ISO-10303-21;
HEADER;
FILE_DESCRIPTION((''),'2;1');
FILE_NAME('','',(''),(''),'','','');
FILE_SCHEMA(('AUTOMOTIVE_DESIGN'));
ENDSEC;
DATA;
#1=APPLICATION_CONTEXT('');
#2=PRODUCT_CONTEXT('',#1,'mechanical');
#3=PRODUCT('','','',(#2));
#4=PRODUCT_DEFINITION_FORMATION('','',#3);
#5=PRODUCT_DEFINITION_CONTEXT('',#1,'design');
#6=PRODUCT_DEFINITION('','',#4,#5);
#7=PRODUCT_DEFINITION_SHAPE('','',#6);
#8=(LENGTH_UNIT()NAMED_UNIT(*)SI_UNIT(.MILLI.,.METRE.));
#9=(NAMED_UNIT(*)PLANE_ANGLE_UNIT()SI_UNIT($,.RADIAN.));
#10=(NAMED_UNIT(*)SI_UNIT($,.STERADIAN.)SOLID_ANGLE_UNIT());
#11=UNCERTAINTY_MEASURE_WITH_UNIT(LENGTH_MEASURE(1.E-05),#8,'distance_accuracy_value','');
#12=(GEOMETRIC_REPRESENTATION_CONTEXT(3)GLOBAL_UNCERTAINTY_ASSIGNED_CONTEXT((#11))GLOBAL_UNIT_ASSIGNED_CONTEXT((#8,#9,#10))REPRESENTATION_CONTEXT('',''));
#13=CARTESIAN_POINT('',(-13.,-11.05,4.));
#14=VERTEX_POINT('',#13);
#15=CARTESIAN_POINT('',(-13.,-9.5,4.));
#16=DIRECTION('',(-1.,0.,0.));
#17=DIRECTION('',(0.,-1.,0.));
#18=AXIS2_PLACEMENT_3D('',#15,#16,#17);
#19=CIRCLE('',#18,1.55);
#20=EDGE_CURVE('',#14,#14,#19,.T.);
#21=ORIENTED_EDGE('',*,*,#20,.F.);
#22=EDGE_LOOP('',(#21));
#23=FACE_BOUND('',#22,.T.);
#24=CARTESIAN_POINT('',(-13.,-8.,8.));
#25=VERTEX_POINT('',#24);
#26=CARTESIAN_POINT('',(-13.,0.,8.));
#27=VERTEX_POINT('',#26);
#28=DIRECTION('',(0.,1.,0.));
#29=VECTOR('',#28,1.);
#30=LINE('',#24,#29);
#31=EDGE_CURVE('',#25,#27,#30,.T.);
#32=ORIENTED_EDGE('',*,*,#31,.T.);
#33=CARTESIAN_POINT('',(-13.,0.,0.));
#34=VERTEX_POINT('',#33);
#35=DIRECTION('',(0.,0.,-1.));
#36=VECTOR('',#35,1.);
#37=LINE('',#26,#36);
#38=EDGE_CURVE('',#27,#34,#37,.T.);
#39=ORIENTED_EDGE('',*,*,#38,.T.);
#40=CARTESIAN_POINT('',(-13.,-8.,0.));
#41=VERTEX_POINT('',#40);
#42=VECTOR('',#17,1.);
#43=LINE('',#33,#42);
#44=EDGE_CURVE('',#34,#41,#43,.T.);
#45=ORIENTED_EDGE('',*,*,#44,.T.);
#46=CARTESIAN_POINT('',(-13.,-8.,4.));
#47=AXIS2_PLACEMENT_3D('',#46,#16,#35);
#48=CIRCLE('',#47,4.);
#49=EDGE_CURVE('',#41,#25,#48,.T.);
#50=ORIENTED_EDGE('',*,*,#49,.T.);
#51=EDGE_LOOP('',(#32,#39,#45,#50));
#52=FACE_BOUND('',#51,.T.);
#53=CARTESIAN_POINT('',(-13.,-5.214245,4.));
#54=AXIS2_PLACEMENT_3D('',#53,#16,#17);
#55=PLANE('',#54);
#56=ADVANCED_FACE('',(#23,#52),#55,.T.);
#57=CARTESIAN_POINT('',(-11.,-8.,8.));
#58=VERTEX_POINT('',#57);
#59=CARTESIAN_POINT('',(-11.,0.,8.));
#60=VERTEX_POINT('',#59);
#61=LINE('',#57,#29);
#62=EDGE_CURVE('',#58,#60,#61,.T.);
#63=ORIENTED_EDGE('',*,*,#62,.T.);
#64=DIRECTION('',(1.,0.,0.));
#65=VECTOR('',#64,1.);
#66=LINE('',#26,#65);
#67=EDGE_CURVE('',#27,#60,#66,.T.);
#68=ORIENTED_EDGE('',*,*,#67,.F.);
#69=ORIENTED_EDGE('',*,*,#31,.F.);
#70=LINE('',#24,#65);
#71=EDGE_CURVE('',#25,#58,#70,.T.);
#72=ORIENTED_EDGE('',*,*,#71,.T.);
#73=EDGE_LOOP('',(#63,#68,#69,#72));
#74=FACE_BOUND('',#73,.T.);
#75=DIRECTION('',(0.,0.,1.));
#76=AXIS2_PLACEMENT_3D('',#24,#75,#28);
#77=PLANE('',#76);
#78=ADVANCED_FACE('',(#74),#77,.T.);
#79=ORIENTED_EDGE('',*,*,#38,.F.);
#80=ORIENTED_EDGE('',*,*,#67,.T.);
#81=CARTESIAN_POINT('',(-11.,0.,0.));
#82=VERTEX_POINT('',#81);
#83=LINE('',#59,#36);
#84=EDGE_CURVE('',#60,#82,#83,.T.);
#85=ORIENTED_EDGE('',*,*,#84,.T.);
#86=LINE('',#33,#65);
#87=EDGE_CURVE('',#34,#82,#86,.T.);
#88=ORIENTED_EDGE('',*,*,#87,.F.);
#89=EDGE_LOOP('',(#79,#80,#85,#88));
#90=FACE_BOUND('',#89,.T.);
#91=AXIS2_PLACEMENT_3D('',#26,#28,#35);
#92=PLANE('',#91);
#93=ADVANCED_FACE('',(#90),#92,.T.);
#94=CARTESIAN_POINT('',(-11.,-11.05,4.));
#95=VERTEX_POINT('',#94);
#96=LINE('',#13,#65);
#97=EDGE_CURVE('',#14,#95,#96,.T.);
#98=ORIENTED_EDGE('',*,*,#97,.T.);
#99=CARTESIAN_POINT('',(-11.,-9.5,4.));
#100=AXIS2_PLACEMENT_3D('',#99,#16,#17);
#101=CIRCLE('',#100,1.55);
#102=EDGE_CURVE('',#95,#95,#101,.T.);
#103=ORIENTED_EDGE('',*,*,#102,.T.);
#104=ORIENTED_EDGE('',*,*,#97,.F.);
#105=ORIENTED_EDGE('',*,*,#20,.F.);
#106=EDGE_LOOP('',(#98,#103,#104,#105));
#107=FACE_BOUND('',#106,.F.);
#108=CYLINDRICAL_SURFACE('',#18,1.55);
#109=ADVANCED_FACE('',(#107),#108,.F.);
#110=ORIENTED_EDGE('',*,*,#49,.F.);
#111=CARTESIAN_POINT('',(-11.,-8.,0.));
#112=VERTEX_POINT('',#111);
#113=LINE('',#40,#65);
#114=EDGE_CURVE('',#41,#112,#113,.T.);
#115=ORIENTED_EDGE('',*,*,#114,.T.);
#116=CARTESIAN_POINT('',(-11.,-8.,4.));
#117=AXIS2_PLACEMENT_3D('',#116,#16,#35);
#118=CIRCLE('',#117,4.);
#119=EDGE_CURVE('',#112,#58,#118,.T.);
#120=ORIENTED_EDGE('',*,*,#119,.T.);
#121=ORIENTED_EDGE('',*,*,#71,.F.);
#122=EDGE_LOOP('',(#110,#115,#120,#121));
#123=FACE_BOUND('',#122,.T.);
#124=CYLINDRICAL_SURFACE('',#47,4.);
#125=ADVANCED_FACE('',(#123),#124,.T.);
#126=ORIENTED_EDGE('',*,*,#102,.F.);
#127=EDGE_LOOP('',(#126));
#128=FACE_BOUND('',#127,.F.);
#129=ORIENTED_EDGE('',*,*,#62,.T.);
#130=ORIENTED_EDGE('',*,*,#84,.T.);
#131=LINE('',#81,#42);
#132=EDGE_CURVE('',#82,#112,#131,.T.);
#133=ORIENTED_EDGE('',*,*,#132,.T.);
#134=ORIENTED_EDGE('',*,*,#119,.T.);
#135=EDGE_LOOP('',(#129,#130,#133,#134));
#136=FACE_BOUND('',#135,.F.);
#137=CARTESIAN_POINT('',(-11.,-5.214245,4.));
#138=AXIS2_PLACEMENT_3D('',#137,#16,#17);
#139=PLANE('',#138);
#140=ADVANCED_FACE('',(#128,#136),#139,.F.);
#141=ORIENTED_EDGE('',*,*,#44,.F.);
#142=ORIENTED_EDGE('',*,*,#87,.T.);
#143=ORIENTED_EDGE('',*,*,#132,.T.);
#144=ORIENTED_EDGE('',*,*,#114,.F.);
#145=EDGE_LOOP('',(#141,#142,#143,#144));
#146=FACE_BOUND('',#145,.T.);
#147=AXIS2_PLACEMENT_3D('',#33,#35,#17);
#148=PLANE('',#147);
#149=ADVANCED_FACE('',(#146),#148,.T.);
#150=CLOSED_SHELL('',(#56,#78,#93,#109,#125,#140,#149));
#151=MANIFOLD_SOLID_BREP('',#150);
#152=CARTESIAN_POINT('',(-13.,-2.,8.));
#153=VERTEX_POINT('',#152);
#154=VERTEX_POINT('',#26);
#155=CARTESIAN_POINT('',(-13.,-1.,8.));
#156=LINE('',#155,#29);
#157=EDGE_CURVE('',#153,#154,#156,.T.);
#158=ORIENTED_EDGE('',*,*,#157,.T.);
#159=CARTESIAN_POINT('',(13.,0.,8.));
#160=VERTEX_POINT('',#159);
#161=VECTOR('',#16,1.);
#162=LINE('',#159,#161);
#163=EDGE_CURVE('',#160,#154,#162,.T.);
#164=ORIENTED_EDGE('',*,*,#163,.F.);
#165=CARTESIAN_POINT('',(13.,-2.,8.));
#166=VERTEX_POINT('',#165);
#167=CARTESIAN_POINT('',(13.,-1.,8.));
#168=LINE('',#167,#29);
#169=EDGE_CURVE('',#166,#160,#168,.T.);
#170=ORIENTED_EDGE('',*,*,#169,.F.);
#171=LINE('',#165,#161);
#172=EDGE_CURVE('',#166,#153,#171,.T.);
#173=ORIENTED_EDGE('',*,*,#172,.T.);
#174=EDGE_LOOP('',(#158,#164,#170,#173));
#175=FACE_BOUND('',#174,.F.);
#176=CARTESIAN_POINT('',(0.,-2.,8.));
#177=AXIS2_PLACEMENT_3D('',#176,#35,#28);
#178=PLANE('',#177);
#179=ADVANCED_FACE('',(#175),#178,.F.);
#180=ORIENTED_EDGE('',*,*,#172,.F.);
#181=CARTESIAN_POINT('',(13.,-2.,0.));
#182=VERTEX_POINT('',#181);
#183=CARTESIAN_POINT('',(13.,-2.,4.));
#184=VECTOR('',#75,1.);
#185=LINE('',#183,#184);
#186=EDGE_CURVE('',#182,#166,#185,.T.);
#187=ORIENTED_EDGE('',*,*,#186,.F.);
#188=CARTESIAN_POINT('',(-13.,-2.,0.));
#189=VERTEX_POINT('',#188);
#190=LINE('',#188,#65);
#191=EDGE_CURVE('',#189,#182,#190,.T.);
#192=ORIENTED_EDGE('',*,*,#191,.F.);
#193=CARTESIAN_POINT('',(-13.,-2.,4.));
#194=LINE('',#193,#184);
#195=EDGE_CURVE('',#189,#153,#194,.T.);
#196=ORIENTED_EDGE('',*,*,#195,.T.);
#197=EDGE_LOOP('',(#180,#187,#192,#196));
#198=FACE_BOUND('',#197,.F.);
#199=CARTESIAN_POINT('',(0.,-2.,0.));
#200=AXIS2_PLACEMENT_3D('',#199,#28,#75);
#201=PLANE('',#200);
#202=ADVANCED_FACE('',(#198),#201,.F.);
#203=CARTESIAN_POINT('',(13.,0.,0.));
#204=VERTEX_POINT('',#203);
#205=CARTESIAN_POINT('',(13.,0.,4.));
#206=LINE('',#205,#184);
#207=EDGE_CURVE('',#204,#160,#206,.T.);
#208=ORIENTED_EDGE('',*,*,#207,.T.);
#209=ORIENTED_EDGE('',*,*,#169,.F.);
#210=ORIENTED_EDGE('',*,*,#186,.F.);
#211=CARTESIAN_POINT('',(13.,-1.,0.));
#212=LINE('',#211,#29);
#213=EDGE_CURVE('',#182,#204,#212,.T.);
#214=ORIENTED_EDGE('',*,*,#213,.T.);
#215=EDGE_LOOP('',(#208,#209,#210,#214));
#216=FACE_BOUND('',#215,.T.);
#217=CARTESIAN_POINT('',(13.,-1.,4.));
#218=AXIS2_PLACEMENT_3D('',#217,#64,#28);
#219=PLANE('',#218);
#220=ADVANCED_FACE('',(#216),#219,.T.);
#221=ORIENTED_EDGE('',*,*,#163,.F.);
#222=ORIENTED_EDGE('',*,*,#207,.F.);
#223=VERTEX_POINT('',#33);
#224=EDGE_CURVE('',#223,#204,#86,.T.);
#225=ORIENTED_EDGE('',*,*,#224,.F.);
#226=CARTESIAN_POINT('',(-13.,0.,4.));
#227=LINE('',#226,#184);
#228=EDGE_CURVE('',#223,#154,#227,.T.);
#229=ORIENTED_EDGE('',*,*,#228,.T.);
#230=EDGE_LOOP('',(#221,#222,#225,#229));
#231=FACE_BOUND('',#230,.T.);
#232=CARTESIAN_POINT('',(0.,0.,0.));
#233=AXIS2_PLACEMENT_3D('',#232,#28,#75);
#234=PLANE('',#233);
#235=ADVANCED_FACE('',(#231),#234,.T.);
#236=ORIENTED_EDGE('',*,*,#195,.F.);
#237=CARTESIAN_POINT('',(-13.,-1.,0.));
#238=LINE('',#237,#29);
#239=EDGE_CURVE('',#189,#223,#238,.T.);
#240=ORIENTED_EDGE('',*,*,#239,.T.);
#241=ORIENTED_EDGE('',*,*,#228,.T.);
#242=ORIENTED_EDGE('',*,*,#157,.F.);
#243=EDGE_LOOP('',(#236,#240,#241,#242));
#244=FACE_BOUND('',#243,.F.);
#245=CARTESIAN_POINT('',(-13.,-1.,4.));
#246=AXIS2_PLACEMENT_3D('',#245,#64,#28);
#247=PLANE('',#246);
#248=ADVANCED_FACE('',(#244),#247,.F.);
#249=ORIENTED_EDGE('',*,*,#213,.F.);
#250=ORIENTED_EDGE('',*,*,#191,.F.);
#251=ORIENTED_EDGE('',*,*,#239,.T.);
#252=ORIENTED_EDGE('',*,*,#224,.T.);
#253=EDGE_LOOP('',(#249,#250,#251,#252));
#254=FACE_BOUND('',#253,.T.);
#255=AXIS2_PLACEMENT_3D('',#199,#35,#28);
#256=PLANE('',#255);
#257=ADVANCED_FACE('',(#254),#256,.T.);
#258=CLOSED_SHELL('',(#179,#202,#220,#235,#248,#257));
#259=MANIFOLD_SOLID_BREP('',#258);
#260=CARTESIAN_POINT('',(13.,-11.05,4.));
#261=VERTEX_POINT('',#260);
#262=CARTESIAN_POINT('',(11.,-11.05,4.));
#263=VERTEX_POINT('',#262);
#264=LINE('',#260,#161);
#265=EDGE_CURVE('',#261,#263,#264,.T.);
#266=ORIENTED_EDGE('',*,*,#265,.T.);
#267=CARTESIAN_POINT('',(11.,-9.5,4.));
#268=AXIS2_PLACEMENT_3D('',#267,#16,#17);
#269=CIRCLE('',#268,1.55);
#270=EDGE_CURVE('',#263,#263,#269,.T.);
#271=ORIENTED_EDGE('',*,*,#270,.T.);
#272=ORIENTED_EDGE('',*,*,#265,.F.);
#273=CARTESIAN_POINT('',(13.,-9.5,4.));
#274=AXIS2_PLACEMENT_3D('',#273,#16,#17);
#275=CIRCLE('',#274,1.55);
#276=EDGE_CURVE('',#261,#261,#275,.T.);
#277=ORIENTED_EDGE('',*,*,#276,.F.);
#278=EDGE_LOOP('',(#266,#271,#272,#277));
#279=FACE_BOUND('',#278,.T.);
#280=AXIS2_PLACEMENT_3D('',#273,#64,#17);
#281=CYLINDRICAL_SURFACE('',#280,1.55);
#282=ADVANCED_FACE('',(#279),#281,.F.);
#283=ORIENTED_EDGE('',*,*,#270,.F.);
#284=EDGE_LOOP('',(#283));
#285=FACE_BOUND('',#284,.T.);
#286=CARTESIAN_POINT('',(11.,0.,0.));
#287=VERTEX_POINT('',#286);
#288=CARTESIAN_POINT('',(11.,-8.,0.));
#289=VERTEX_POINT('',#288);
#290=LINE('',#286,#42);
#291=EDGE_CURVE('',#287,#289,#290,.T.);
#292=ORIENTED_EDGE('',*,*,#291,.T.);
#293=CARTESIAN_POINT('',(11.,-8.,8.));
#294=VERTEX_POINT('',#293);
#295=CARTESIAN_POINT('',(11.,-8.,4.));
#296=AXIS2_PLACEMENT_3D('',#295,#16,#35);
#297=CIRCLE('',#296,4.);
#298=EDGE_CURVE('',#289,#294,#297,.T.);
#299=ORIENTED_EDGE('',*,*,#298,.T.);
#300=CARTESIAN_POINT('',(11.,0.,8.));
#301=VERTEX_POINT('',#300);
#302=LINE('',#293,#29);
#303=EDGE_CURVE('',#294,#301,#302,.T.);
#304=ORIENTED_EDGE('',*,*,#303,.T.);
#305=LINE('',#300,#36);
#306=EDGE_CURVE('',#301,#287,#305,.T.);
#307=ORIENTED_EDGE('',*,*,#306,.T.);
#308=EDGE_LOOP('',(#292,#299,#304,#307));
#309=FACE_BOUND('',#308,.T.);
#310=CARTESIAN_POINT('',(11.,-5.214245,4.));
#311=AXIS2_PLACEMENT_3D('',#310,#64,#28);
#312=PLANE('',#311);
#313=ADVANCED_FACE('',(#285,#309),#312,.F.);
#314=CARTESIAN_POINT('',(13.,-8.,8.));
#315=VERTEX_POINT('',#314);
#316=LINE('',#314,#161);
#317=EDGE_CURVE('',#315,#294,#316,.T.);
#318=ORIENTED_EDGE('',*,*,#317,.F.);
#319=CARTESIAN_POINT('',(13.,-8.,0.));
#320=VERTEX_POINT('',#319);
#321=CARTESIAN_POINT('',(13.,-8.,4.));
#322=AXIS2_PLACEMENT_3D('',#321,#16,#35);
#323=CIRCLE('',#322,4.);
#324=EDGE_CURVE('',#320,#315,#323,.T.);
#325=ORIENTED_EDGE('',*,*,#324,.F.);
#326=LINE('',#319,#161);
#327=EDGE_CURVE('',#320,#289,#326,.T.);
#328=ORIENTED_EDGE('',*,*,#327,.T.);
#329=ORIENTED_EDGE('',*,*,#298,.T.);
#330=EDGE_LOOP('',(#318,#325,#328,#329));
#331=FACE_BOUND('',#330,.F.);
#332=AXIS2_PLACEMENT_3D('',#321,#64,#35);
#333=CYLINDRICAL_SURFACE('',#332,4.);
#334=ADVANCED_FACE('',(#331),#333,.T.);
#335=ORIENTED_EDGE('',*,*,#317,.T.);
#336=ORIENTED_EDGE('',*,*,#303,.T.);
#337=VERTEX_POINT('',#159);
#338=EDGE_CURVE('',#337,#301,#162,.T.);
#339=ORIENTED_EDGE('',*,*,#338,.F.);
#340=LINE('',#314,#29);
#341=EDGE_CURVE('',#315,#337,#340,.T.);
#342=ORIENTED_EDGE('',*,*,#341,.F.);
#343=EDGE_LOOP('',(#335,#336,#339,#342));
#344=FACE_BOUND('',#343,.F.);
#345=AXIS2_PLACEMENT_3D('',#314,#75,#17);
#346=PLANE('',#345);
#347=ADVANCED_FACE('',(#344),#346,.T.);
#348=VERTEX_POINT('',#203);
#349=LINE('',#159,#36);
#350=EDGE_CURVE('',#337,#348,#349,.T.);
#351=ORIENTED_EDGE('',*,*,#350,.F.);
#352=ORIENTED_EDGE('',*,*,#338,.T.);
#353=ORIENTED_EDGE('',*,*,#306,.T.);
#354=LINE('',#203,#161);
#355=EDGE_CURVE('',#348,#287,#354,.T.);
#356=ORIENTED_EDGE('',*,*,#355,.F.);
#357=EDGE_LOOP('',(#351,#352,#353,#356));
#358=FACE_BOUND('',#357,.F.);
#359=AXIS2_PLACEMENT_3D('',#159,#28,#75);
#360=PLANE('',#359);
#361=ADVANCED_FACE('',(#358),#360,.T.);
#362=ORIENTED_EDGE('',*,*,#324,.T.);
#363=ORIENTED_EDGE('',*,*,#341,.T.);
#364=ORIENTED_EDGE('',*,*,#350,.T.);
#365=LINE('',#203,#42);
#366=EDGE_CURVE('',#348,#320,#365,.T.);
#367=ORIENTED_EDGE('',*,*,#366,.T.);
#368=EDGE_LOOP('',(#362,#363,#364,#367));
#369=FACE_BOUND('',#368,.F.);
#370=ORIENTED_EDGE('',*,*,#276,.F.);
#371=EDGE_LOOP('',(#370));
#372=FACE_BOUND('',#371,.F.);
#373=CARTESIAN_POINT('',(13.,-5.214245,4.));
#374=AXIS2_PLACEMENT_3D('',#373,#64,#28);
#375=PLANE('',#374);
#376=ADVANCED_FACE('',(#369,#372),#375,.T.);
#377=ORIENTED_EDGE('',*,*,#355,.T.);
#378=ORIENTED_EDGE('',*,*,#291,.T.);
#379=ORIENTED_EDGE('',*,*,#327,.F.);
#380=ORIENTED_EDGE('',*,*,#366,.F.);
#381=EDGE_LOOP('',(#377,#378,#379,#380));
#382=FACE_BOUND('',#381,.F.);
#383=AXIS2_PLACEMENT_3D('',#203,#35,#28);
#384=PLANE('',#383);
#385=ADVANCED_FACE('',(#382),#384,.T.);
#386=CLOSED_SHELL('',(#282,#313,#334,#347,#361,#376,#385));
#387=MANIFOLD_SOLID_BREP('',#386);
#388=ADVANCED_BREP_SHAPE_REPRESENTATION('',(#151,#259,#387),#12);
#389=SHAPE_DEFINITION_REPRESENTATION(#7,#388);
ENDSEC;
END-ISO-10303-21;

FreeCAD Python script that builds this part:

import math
import FreeCAD as App
import Part
import Sketcher

V = App.Vector
Q = App.Units.Quantity


def add_polygon(sketch, points):
    """Adds a closed chain of lines whose ends are joined by coincident constraints."""
    first, n = sketch.GeometryCount, len(points)
    for a, b in zip(points, points[1:] + points[:1]):
        sketch.addGeometry(Part.LineSegment(App.Vector(*a, 0), App.Vector(*b, 0)), False)
    for i in range(n):
        sketch.addConstraint(Sketcher.Constraint("Coincident", first + i, 2, first + (i + 1) % n, 1))

doc = App.newDocument("Part")
body = doc.addObject("PartDesign::Body", "Body")

sketch1 = doc.addObject("Sketcher::SketchObject", "Sketch")
body.addObject(sketch1)
sketch1.AttachmentSupport = (doc.YZ_Plane, [""])
sketch1.MapMode = "FlatFace"
add_polygon(sketch1, [(-2, 8), (-2, 0), (0, 0), (0, 8)])
sketch1.addConstraint(Sketcher.Constraint("Vertical", 0))
sketch1.addConstraint(Sketcher.Constraint("Horizontal", 1))
sketch1.addConstraint(Sketcher.Constraint("Vertical", 2))
sketch1.addConstraint(Sketcher.Constraint("Horizontal", 3))
sketch1.addConstraint(Sketcher.Constraint("Coincident", 1, 2, -1, 1))
sketch1.addConstraint(Sketcher.Constraint("DistanceX", 1, 1, 1, 2, Q("2 mm")))
sketch1.addConstraint(Sketcher.Constraint("DistanceY", 0, 2, 0, 1, Q("8 mm")))
pad1 = doc.addObject("PartDesign::Pad", "Pad")
body.addObject(pad1)
pad1.Profile = sketch1
pad1.Length = 26
pad1.Midplane = True
body2 = doc.addObject("PartDesign::Body", "Body001")

sketch2 = doc.addObject("Sketcher::SketchObject", "Sketch001")
body2.addObject(sketch2)
sketch2.AttachmentSupport = (doc.getObject("YZ_Plane001"), [""])
sketch2.MapMode = "FlatFace"
sketch2.AttachmentOffset = App.Placement(V(0, 0, -13), App.Rotation())
sketch2.addGeometry(Part.LineSegment(V(-8, 8, 0), V(0, 8, 0)), False)
sketch2.addGeometry(Part.LineSegment(V(0, 8, 0), V(0, 0, 0)), False)
sketch2.addGeometry(Part.LineSegment(V(0, 0, 0), V(-8, 0, 0)), False)
sketch2.addGeometry(Part.ArcOfCircle(Part.Circle(V(-8, 4, 0), V(0, 0, 1), 4), math.radians(90), math.radians(270)), False)
sketch2.addGeometry(Part.Circle(V(-9.5, 4, 0), V(0, 0, 1), 1.55), False)
sketch2.addConstraint(Sketcher.Constraint("Coincident", 0, 2, 1, 1))
sketch2.addConstraint(Sketcher.Constraint("Coincident", 1, 2, 2, 1))
sketch2.addConstraint(Sketcher.Constraint("Tangent", 2, 2, 3, 2))
sketch2.addConstraint(Sketcher.Constraint("Tangent", 3, 1, 0, 1))
sketch2.addConstraint(Sketcher.Constraint("Horizontal", 0))
sketch2.addConstraint(Sketcher.Constraint("Vertical", 1))
sketch2.addConstraint(Sketcher.Constraint("Horizontal", 2))
sketch2.addConstraint(Sketcher.Constraint("Coincident", 1, 2, -1, 1))
sketch2.addConstraint(Sketcher.Constraint("Horizontal", 3, 3, 4, 3))
sketch2.addConstraint(Sketcher.Constraint("Equal", 2, 1))
sketch2.addConstraint(Sketcher.Constraint("Radius", 3, Q("4 mm")))
sketch2.addConstraint(Sketcher.Constraint("Diameter", 4, Q("3.1 mm")))
sketch2.addConstraint(Sketcher.Constraint("DistanceX", 4, 3, -1, 1, Q("9.5 mm")))
pad2 = doc.addObject("PartDesign::Pad", "Pad001")
body2.addObject(pad2)
pad2.Profile = sketch2
pad2.Length = 2
body3 = doc.addObject("PartDesign::Body", "Body002")
doc.recompute()

mirroring = doc.addObject("Part::Mirroring", "Mirroring")
mirroring.Source = body2
mirroring.Base = V(0, 0, 0)
mirroring.Normal = V(1, 0, 0)
body3.BaseFeature = mirroring
doc.recompute()
mirroring.Visibility = False

doc.recompute()
